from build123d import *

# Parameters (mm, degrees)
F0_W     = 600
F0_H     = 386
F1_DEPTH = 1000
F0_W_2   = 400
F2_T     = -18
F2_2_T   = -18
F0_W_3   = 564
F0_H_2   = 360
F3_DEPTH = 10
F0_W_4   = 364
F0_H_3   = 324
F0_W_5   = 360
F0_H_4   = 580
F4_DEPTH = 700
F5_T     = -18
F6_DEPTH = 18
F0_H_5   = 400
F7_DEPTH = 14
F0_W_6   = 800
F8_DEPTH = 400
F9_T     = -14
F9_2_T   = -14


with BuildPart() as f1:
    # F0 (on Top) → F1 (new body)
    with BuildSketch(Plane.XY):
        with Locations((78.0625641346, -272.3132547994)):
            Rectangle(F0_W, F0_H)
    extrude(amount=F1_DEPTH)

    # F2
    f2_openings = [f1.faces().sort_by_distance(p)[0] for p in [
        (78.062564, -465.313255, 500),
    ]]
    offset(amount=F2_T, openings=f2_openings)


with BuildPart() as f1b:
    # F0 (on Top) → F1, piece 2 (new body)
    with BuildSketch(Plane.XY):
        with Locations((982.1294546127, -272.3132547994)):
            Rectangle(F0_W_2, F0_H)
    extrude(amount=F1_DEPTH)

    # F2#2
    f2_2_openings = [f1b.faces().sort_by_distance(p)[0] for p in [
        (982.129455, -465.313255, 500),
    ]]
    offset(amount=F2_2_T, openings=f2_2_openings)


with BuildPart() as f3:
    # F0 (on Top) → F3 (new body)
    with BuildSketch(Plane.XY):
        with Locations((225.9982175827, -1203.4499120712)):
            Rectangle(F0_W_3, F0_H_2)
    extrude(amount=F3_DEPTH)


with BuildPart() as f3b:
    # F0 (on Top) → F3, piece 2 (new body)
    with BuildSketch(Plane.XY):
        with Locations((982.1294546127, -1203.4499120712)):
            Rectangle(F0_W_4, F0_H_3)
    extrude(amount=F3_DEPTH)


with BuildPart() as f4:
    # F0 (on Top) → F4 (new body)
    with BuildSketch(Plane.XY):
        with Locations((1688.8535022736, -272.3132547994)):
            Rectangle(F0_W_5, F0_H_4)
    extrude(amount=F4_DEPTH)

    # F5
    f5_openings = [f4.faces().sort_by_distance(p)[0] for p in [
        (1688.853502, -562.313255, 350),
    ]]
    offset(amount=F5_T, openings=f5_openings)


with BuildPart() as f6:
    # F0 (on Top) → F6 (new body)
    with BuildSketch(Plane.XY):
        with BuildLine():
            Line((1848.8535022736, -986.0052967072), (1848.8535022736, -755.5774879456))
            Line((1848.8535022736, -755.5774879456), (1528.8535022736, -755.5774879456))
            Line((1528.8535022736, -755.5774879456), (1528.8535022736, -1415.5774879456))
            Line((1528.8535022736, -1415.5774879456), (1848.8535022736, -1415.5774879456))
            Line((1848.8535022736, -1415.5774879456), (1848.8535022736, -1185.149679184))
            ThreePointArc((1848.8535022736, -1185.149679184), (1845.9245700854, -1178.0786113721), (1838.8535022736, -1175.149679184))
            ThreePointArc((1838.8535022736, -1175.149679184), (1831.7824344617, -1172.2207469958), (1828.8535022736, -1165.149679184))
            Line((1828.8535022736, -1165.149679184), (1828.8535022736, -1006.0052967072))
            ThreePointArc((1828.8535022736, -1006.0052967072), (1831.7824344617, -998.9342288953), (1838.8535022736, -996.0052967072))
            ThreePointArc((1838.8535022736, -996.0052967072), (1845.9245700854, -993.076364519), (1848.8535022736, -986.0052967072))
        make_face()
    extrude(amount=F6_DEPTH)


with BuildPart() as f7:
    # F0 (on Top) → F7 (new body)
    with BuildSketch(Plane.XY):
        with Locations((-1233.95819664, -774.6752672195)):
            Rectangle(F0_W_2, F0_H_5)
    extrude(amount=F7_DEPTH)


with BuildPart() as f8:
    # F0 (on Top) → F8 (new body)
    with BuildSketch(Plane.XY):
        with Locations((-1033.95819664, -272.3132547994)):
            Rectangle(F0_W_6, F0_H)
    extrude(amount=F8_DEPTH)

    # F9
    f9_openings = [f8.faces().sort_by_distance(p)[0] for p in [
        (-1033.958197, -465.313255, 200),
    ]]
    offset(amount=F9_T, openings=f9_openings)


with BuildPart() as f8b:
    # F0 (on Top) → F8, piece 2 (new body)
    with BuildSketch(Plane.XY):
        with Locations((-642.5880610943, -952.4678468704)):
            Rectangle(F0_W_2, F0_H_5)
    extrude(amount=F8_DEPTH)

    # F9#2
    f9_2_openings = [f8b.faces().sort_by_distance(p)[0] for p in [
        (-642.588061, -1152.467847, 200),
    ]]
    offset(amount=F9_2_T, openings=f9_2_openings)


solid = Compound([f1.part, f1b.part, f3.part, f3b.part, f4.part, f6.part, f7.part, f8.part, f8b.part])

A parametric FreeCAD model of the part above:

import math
import FreeCAD as App
import Part
import Sketcher
from FreeCAD import Vector
Q = App.Units.Quantity


def faces_at(feature, points):
    """Names of the faces that lie closest to the given points."""
    faces = feature.Shape.Faces
    near = lambda p: min(range(len(faces)), key=lambda i: faces[i].distToShape(Part.Vertex(*p))[0])
    return sorted({f"Face{near(p) + 1}" for p in points})


def add_polygon(sketch, points):
    """Adds a closed chain of lines whose ends are joined by coincident constraints."""
    first, n = sketch.GeometryCount, len(points)
    for a, b in zip(points, points[1:] + points[:1]):
        sketch.addGeometry(Part.LineSegment(App.Vector(*a, 0), App.Vector(*b, 0)), False)
    for i in range(n):
        sketch.addConstraint(Sketcher.Constraint("Coincident", first + i, 2, first + (i + 1) % n, 1))

doc = App.newDocument("Part")
body = doc.addObject("PartDesign::Body", "Body")

# Sketch on XY plane
sketch1 = body.newObject("Sketcher::SketchObject", "Sketch")
sketch1.AttachmentSupport = (doc.getObject("XY_Plane"), [""])
sketch1.MapMode = "FlatFace"
add_polygon(sketch1, [(-222, -79), (-222, -465), (378, -465), (378, -79)])  # lines 0-3
sketch1.addConstraint([
    Sketcher.Constraint("Vertical", 0),
    Sketcher.Constraint("Horizontal", 1),
    Sketcher.Constraint("Vertical", 2),
    Sketcher.Constraint("Horizontal", 3),
    Sketcher.Constraint("DistanceX", 1, 1, 1, 2, Q("600 mm")),
    Sketcher.Constraint("DistanceY", 0, 2, 0, 1, Q("386 mm")),
    Sketcher.Constraint("DistanceX", 0, 2, -1, 1, Q("221.937436 mm")),
    Sketcher.Constraint("DistanceY", 0, 2, -1, 1, Q("465.313255 mm")),
])
pad1 = body.newObject("PartDesign::Pad", "Pad")
pad1.Profile = sketch1
pad1.Length = 1000
doc.recompute()

thickness = body.newObject("PartDesign::Thickness", "Thickness")
thickness.Base = (pad1, faces_at(pad1, [(78.063, -465.313, 500)]))
thickness.Value = 18
thickness.Reversed = True
thickness.Join = "Arc"
body2 = doc.addObject("PartDesign::Body", "Body001")

# Sketch on XY plane
sketch2 = body2.newObject("Sketcher::SketchObject", "Sketch001")
sketch2.AttachmentSupport = (doc.getObject("XY_Plane001"), [""])
sketch2.MapMode = "FlatFace"
add_polygon(sketch2, [(782, -79), (782, -465), (1182, -465), (1182, -79)])  # lines 0-3
sketch2.addConstraint([
    Sketcher.Constraint("Vertical", 0),
    Sketcher.Constraint("Horizontal", 1),
    Sketcher.Constraint("Vertical", 2),
    Sketcher.Constraint("Horizontal", 3),
    Sketcher.Constraint("DistanceX", 1, 1, 1, 2, Q("400 mm")),
    Sketcher.Constraint("DistanceY", 0, 2, 0, 1, Q("386 mm")),
    Sketcher.Constraint("DistanceX", -1, 1, 0, 2, Q("782.129455 mm")),
    Sketcher.Constraint("DistanceY", 0, 2, -1, 1, Q("465.313255 mm")),
])
pad2 = body2.newObject("PartDesign::Pad", "Pad001")
pad2.Profile = sketch2
pad2.Length = 1000
doc.recompute()

thickness2 = body2.newObject("PartDesign::Thickness", "Thickness001")
thickness2.Base = (pad2, faces_at(pad2, [(982.129, -465.313, 500)]))
thickness2.Value = 18
thickness2.Reversed = True
thickness2.Join = "Arc"
body3 = doc.addObject("PartDesign::Body", "Body002")

# Sketch on XY plane
sketch3 = body3.newObject("Sketcher::SketchObject", "Sketch002")
sketch3.AttachmentSupport = (doc.getObject("XY_Plane002"), [""])
sketch3.MapMode = "FlatFace"
add_polygon(sketch3, [(-56, -1023), (-56, -1383), (508, -1383), (508, -1023)])  # lines 0-3
sketch3.addConstraint([
    Sketcher.Constraint("Vertical", 0),
    Sketcher.Constraint("Horizontal", 1),
    Sketcher.Constraint("Vertical", 2),
    Sketcher.Constraint("Horizontal", 3),
    Sketcher.Constraint("DistanceX", 1, 1, 1, 2, Q("564 mm")),
    Sketcher.Constraint("DistanceY", 0, 2, 0, 1, Q("360 mm")),
    Sketcher.Constraint("DistanceX", 0, 2, -1, 1, Q("56.001782 mm")),
    Sketcher.Constraint("DistanceY", 0, 2, -1, 1, Q("1383.449912 mm")),
])
pad3 = body3.newObject("PartDesign::Pad", "Pad002")
pad3.Profile = sketch3
pad3.Length = 10
body4 = doc.addObject("PartDesign::Body", "Body003")

# Sketch on XY plane
sketch4 = body4.newObject("Sketcher::SketchObject", "Sketch003")
sketch4.AttachmentSupport = (doc.getObject("XY_Plane003"), [""])
sketch4.MapMode = "FlatFace"
add_polygon(sketch4, [(800, -1041), (800, -1365), (1164, -1365), (1164, -1041)])  # lines 0-3
sketch4.addConstraint([
    Sketcher.Constraint("Vertical", 0),
    Sketcher.Constraint("Horizontal", 1),
    Sketcher.Constraint("Vertical", 2),
    Sketcher.Constraint("Horizontal", 3),
    Sketcher.Constraint("DistanceX", 1, 1, 1, 2, Q("364 mm")),
    Sketcher.Constraint("DistanceY", 0, 2, 0, 1, Q("324 mm")),
    Sketcher.Constraint("DistanceX", -1, 1, 0, 2, Q("800.129455 mm")),
    Sketcher.Constraint("DistanceY", 0, 2, -1, 1, Q("1365.449912 mm")),
])
pad4 = body4.newObject("PartDesign::Pad", "Pad003")
pad4.Profile = sketch4
pad4.Length = 10
body5 = doc.addObject("PartDesign::Body", "Body004")

# Sketch on XY plane
sketch5 = body5.newObject("Sketcher::SketchObject", "Sketch004")
sketch5.AttachmentSupport = (doc.getObject("XY_Plane004"), [""])
sketch5.MapMode = "FlatFace"
add_polygon(sketch5, [(1509, 18), (1509, -562), (1869, -562), (1869, 18)])  # lines 0-3
sketch5.addConstraint([
    Sketcher.Constraint("Vertical", 0),
    Sketcher.Constraint("Horizontal", 1),
    Sketcher.Constraint("Vertical", 2),
    Sketcher.Constraint("Horizontal", 3),
    Sketcher.Constraint("DistanceX", 1, 1, 1, 2, Q("360 mm")),
    Sketcher.Constraint("DistanceY", 0, 2, 0, 1, Q("580 mm")),
    Sketcher.Constraint("DistanceX", -1, 1, 0, 2, Q("1508.853502 mm")),
    Sketcher.Constraint("DistanceY", 0, 2, -1, 1, Q("562.313255 mm")),
])
pad5 = body5.newObject("PartDesign::Pad", "Pad004")
pad5.Profile = sketch5
pad5.Length = 700
doc.recompute()

thickness3 = body5.newObject("PartDesign::Thickness", "Thickness002")
thickness3.Base = (pad5, faces_at(pad5, [(1688.854, -562.313, 350)]))
thickness3.Value = 18
thickness3.Reversed = True
thickness3.Join = "Arc"
body6 = doc.addObject("PartDesign::Body", "Body005")

# Sketch on XY plane
sketch6 = body6.newObject("Sketcher::SketchObject", "Sketch005")
sketch6.AttachmentSupport = (doc.getObject("XY_Plane005"), [""])
sketch6.MapMode = "FlatFace"
sketch6.addGeometry([
    Part.LineSegment(Vector(1849, -986, 0), Vector(1849, -756, 0)),  # 0
    Part.LineSegment(Vector(1849, -756, 0), Vector(1529, -756, 0)),  # 1
    Part.LineSegment(Vector(1529, -756, 0), Vector(1529, -1416, 0)),  # 2
    Part.LineSegment(Vector(1529, -1416, 0), Vector(1849, -1416, 0)),  # 3
    Part.LineSegment(Vector(1849, -1416, 0), Vector(1849, -1185, 0)),  # 4
    Part.ArcOfCircle(Part.Circle(Vector(1839, -1185, 0), Vector(0, 0, 1), 10), math.radians(0), math.radians(90)),  # 5
    Part.ArcOfCircle(Part.Circle(Vector(1839, -1165, 0), Vector(0, 0, 1), 10), math.radians(180), math.radians(270)),  # 6
    Part.LineSegment(Vector(1829, -1165, 0), Vector(1829, -1006, 0)),  # 7
    Part.ArcOfCircle(Part.Circle(Vector(1839, -1006, 0), Vector(0, 0, 1), 10), math.radians(90), math.radians(180)),  # 8
    Part.ArcOfCircle(Part.Circle(Vector(1839, -986, 0), Vector(0, 0, 1), 10), math.radians(-90), math.radians(0)),  # 9
], False)
sketch6.addConstraint([
    Sketcher.Constraint("Coincident", 0, 2, 1, 1),
    Sketcher.Constraint("Coincident", 1, 2, 2, 1),
    Sketcher.Constraint("Coincident", 2, 2, 3, 1),
    Sketcher.Constraint("Coincident", 3, 2, 4, 1),
    Sketcher.Constraint("Tangent", 4, 2, 5, 1),
    Sketcher.Constraint("Tangent", 5, 2, 6, 2),
    Sketcher.Constraint("Tangent", 6, 1, 7, 1),
    Sketcher.Constraint("Tangent", 7, 2, 8, 2),
    Sketcher.Constraint("Tangent", 8, 1, 9, 1),
    Sketcher.Constraint("Tangent", 9, 2, 0, 1),
    Sketcher.Constraint("Vertical", 0),
    Sketcher.Constraint("Horizontal", 1),
    Sketcher.Constraint("Vertical", 2),
    Sketcher.Constraint("Horizontal", 3),
    Sketcher.Constraint("Vertical", 4),
    Sketcher.Constraint("Vertical", 7),
    Sketcher.Constraint("Equal", 5, 6),
    Sketcher.Constraint("Equal", 6, 8),
    Sketcher.Constraint("Equal", 8, 9),
    Sketcher.Constraint("Vertical", 5, 3, 6, 3),
    Sketcher.Constraint("Vertical", 8, 3, 9, 3),
    Sketcher.Constraint("Equal", 0, 4),
    Sketcher.Constraint("Radius", 5, Q("10 mm")),
    Sketcher.Constraint("DistanceX", 1, 2, 1, 1, Q("320 mm")),
    Sketcher.Constraint("DistanceY", 2, 2, 2, 1, Q("660 mm")),
    Sketcher.Constraint("DistanceY", 0, 1, 0, 2, Q("230.427809 mm")),
    Sketcher.Constraint("DistanceY", 5, 3, -1, 1, Q("1185.149679 mm")),
    Sketcher.Constraint("DistanceX", -1, 1, 5, 3, Q("1838.853502 mm")),
])
pad6 = body6.newObject("PartDesign::Pad", "Pad005")
pad6.Profile = sketch6
pad6.Length = 18
body7 = doc.addObject("PartDesign::Body", "Body006")

# Sketch on XY plane
sketch7 = body7.newObject("Sketcher::SketchObject", "Sketch006")
sketch7.AttachmentSupport = (doc.getObject("XY_Plane006"), [""])
sketch7.MapMode = "FlatFace"
add_polygon(sketch7, [(-1434, -575), (-1434, -975), (-1034, -975), (-1034, -575)])  # lines 0-3
sketch7.addConstraint([
    Sketcher.Constraint("Vertical", 0),
    Sketcher.Constraint("Horizontal", 1),
    Sketcher.Constraint("Vertical", 2),
    Sketcher.Constraint("Horizontal", 3),
    Sketcher.Constraint("Equal", 3, 0),
    Sketcher.Constraint("DistanceX", 1, 1, 1, 2, Q("400 mm")),
    Sketcher.Constraint("DistanceX", 0, 2, -1, 1, Q("1433.958197 mm")),
    Sketcher.Constraint("DistanceY", 0, 2, -1, 1, Q("974.675267 mm")),
])
pad7 = body7.newObject("PartDesign::Pad", "Pad006")
pad7.Profile = sketch7
pad7.Length = 14
body8 = doc.addObject("PartDesign::Body", "Body007")

# Sketch on XY plane
sketch8 = body8.newObject("Sketcher::SketchObject", "Sketch007")
sketch8.AttachmentSupport = (doc.getObject("XY_Plane007"), [""])
sketch8.MapMode = "FlatFace"
add_polygon(sketch8, [(-1434, -79), (-1434, -465), (-634, -465), (-634, -79)])  # lines 0-3
sketch8.addConstraint([
    Sketcher.Constraint("Vertical", 0),
    Sketcher.Constraint("Horizontal", 1),
    Sketcher.Constraint("Vertical", 2),
    Sketcher.Constraint("Horizontal", 3),
    Sketcher.Constraint("DistanceX", 1, 1, 1, 2, Q("800 mm")),
    Sketcher.Constraint("DistanceY", 0, 2, 0, 1, Q("386 mm")),
    Sketcher.Constraint("DistanceX", 0, 2, -1, 1, Q("1433.958197 mm")),
    Sketcher.Constraint("DistanceY", 0, 2, -1, 1, Q("465.313255 mm")),
])
pad8 = body8.newObject("PartDesign::Pad", "Pad007")
pad8.Profile = sketch8
pad8.Length = 400
doc.recompute()

thickness4 = body8.newObject("PartDesign::Thickness", "Thickness003")
thickness4.Base = (pad8, faces_at(pad8, [(-1033.958, -465.313, 200)]))
thickness4.Value = 14
thickness4.Reversed = True
thickness4.Join = "Arc"
body9 = doc.addObject("PartDesign::Body", "Body008")

# Sketch on XY plane
sketch9 = body9.newObject("Sketcher::SketchObject", "Sketch008")
sketch9.AttachmentSupport = (doc.getObject("XY_Plane008"), [""])
sketch9.MapMode = "FlatFace"
add_polygon(sketch9, [(-843, -752), (-843, -1152), (-443, -1152), (-443, -752)])  # lines 0-3
sketch9.addConstraint([
    Sketcher.Constraint("Vertical", 0),
    Sketcher.Constraint("Horizontal", 1),
    Sketcher.Constraint("Vertical", 2),
    Sketcher.Constraint("Horizontal", 3),
    Sketcher.Constraint("Equal", 3, 0),
    Sketcher.Constraint("DistanceX", 1, 1, 1, 2, Q("400 mm")),
    Sketcher.Constraint("DistanceX", 0, 2, -1, 1, Q("842.588061 mm")),
    Sketcher.Constraint("DistanceY", 0, 2, -1, 1, Q("1152.467847 mm")),
])
pad9 = body9.newObject("PartDesign::Pad", "Pad008")
pad9.Profile = sketch9
pad9.Length = 400
doc.recompute()

thickness5 = body9.newObject("PartDesign::Thickness", "Thickness004")
thickness5.Base = (pad9, faces_at(pad9, [(-642.588, -1152.468, 200)]))
thickness5.Value = 14
thickness5.Reversed = True
thickness5.Join = "Arc"

doc.recompute()
